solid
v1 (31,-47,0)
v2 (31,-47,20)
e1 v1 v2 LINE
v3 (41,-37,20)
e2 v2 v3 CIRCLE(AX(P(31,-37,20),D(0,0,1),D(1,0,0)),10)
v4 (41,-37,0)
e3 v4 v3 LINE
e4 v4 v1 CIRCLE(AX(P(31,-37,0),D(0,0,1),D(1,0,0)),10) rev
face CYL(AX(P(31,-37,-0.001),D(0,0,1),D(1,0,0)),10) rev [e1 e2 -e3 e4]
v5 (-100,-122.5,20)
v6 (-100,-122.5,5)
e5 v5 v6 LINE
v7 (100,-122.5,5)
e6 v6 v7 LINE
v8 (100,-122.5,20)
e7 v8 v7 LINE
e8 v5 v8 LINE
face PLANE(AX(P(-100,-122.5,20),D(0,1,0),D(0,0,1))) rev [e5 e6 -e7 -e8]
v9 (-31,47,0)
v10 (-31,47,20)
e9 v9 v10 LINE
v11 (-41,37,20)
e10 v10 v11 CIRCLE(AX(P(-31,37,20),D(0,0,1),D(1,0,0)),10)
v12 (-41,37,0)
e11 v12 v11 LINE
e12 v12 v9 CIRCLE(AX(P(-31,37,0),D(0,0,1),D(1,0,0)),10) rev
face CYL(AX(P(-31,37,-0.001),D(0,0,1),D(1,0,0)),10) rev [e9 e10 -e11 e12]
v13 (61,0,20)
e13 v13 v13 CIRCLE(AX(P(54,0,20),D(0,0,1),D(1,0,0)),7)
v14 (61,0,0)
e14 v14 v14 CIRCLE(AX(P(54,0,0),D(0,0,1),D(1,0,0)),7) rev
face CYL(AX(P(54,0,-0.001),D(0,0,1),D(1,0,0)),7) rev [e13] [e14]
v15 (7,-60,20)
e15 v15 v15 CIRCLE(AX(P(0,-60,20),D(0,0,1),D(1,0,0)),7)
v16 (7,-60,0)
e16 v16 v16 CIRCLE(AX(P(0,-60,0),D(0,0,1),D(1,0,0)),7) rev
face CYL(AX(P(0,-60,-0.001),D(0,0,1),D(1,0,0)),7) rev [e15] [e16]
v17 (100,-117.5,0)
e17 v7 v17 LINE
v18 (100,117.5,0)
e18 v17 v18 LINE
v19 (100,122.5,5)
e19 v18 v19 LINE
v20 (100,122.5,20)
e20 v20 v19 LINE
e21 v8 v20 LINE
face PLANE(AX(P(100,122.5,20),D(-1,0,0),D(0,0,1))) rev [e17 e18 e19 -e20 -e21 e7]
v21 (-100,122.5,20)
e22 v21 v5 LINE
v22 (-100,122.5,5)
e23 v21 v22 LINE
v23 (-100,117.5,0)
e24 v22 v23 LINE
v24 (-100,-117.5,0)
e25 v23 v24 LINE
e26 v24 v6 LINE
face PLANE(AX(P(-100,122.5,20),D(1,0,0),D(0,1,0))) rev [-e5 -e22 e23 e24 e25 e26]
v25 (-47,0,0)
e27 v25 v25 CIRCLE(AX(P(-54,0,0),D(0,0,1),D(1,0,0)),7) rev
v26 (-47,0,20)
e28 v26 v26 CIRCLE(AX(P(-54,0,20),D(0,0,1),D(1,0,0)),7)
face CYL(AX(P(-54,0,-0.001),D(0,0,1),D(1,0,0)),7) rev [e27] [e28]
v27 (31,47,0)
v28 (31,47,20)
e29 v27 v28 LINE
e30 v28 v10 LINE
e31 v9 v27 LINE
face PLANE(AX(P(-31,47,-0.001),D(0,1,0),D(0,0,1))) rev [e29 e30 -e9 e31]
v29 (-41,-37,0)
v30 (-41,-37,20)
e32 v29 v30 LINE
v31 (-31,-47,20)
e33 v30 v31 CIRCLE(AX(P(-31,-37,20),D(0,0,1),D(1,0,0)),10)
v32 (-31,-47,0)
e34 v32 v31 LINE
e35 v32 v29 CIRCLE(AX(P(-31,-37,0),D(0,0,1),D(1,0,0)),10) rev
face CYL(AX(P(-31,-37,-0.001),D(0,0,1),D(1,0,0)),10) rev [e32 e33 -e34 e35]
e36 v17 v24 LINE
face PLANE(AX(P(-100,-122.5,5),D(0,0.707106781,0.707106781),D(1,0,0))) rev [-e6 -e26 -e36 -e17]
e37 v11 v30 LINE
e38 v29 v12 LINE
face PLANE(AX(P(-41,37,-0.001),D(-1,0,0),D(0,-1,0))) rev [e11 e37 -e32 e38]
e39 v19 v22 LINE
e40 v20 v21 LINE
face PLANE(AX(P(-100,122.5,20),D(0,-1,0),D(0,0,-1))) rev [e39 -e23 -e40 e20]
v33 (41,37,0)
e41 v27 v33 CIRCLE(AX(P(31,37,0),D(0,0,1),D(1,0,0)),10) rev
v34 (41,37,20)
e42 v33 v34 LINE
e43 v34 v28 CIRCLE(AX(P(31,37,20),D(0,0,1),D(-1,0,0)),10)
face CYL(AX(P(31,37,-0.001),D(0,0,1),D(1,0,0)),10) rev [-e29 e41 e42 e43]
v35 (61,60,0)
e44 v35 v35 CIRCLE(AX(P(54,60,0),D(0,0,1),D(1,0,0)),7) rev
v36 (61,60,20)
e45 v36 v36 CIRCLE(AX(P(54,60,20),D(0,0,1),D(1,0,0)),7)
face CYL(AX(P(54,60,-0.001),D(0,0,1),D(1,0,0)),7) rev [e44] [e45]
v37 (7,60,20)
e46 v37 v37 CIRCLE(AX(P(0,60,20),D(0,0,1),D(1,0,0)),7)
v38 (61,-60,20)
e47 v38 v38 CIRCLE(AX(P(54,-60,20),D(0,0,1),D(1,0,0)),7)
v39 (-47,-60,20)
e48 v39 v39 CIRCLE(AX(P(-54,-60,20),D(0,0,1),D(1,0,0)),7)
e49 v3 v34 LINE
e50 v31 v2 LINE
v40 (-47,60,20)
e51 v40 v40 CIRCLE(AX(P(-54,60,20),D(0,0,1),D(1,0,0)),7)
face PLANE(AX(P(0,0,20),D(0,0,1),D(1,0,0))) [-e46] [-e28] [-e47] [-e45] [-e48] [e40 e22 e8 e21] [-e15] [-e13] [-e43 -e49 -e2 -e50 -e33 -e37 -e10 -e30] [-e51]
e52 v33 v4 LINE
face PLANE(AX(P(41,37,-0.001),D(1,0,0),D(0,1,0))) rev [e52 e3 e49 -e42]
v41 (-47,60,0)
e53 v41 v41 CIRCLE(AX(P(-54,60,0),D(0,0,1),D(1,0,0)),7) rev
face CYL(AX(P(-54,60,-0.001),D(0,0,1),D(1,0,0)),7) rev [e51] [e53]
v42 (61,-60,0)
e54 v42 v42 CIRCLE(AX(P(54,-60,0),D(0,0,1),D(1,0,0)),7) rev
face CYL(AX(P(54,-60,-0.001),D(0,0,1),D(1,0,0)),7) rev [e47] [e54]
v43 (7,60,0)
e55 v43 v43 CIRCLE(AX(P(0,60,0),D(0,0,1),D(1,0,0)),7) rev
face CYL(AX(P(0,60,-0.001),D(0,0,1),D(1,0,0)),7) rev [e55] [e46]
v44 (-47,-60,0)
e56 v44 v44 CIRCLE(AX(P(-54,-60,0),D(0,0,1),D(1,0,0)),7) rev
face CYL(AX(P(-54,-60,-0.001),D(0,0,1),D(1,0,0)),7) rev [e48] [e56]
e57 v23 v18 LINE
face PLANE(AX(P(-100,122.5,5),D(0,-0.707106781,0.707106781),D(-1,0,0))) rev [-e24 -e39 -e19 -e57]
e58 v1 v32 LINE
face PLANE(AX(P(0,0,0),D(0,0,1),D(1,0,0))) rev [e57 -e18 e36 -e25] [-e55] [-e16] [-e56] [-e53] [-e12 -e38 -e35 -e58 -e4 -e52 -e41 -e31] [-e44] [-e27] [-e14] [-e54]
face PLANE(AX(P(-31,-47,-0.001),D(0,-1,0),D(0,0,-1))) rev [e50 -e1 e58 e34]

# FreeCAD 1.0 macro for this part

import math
import FreeCAD as App
import Part
import Sketcher

V = App.Vector
Q = App.Units.Quantity


def edges_at(feature, points):
    """Names of the edges that pass closest to the given points."""
    edges = feature.Shape.Edges
    near = lambda p: min(range(len(edges)), key=lambda i: edges[i].distToShape(Part.Vertex(*p))[0])
    return sorted({f"Edge{near(p) + 1}" for p in points})

doc = App.newDocument("Part")
body = doc.addObject("PartDesign::Body", "Body")

# Sketch on XY plane
sketch1 = doc.addObject("Sketcher::SketchObject", "Sketch")
body.addObject(sketch1)
sketch1.AttachmentSupport = (doc.XY_Plane, [""])
sketch1.MapMode = "FlatFace"
sketch1.addGeometry([
    Part.LineSegment(V(-100, 122.5, 0), V(-100, -122.5, 0)),
    Part.LineSegment(V(-100, -122.5, 0), V(100, -122.5, 0)),
    Part.LineSegment(V(100, -122.5, 0), V(100, 122.5, 0)),
    Part.LineSegment(V(100, 122.5, 0), V(-100, 122.5, 0)),
], False)
sketch1.addConstraint([
    Sketcher.Constraint("Coincident", 0, 2, 1, 1),
    Sketcher.Constraint("Coincident", 1, 2, 2, 1),
    Sketcher.Constraint("Coincident", 2, 2, 3, 1),
    Sketcher.Constraint("Coincident", 3, 2, 0, 1),
    Sketcher.Constraint("Vertical", 0),
    Sketcher.Constraint("Horizontal", 1),
    Sketcher.Constraint("Vertical", 2),
    Sketcher.Constraint("Horizontal", 3),
    Sketcher.Constraint("Symmetric", 0, 2, 2, 2, -1, 1),
    Sketcher.Constraint("DistanceX", 1, 1, 1, 2, Q("200 mm")),
    Sketcher.Constraint("DistanceY", 0, 2, 0, 1, Q("245 mm")),
])
pad1 = doc.addObject("PartDesign::Pad", "Pad")
body.addObject(pad1)
pad1.Profile = sketch1
pad1.Length = 20

# Sketch on XY plane
sketch2 = doc.addObject("Sketcher::SketchObject", "Sketch001")
body.addObject(sketch2)
sketch2.AttachmentSupport = (doc.XY_Plane, [""])
sketch2.MapMode = "FlatFace"
sketch2.AttachmentOffset = App.Placement(V(0, 0, 20), App.Rotation())
sketch2.addGeometry(Part.Circle(V(-54, 60, 0), V(0, 0, 1), 7), False)
sketch2.addConstraint([
    Sketcher.Constraint("Diameter", 0, Q("14 mm")),
    Sketcher.Constraint("DistanceX", 0, 3, -1, 1, Q("54 mm")),
    Sketcher.Constraint("DistanceY", -1, 1, 0, 3, Q("60 mm")),
])
pocket1 = doc.addObject("PartDesign::Pocket", "Pocket")
body.addObject(pocket1)
pocket1.Profile = sketch2
pocket1.Type = "UpToFirst"

# Sketch on XY plane
sketch3 = doc.addObject("Sketcher::SketchObject", "Sketch002")
body.addObject(sketch3)
sketch3.AttachmentSupport = (doc.XY_Plane, [""])
sketch3.MapMode = "FlatFace"
sketch3.AttachmentOffset = App.Placement(V(0, 0, 20), App.Rotation())
sketch3.addGeometry(Part.Circle(V(0, 60, 0), V(0, 0, 1), 7), False)
sketch3.addConstraint([
    Sketcher.Constraint("PointOnObject", 0, 3, -2),
    Sketcher.Constraint("Diameter", 0, Q("14 mm")),
    Sketcher.Constraint("DistanceY", -1, 1, 0, 3, Q("60 mm")),
])
pocket2 = doc.addObject("PartDesign::Pocket", "Pocket001")
body.addObject(pocket2)
pocket2.Profile = sketch3
pocket2.Type = "UpToFirst"

# Sketch on XY plane
sketch4 = doc.addObject("Sketcher::SketchObject", "Sketch003")
body.addObject(sketch4)
sketch4.AttachmentSupport = (doc.XY_Plane, [""])
sketch4.MapMode = "FlatFace"
sketch4.AttachmentOffset = App.Placement(V(0, 0, 20), App.Rotation())
sketch4.addGeometry(Part.Circle(V(54, 60, 0), V(0, 0, 1), 7), False)
sketch4.addConstraint([
    Sketcher.Constraint("Diameter", 0, Q("14 mm")),
    Sketcher.Constraint("DistanceX", -1, 1, 0, 3, Q("54 mm")),
    Sketcher.Constraint("DistanceY", -1, 1, 0, 3, Q("60 mm")),
])
pocket3 = doc.addObject("PartDesign::Pocket", "Pocket002")
body.addObject(pocket3)
pocket3.Profile = sketch4
pocket3.Type = "UpToFirst"

# Sketch on XY plane
sketch5 = doc.addObject("Sketcher::SketchObject", "Sketch004")
body.addObject(sketch5)
sketch5.AttachmentSupport = (doc.XY_Plane, [""])
sketch5.MapMode = "FlatFace"
sketch5.AttachmentOffset = App.Placement(V(0, 0, 20), App.Rotation())
sketch5.addGeometry(Part.Circle(V(-54, 0, 0), V(0, 0, 1), 7), False)
sketch5.addConstraint([
    Sketcher.Constraint("PointOnObject", 0, 3, -1),
    Sketcher.Constraint("Diameter", 0, Q("14 mm")),
    Sketcher.Constraint("DistanceX", 0, 3, -1, 1, Q("54 mm")),
])
pocket4 = doc.addObject("PartDesign::Pocket", "Pocket003")
body.addObject(pocket4)
pocket4.Profile = sketch5
pocket4.Type = "UpToFirst"

# Sketch on XY plane
sketch6 = doc.addObject("Sketcher::SketchObject", "Sketch005")
body.addObject(sketch6)
sketch6.AttachmentSupport = (doc.XY_Plane, [""])
sketch6.MapMode = "FlatFace"
sketch6.AttachmentOffset = App.Placement(V(0, 0, 20), App.Rotation())
sketch6.addGeometry(Part.Circle(V(54, 0, 0), V(0, 0, 1), 7), False)
sketch6.addConstraint([
    Sketcher.Constraint("PointOnObject", 0, 3, -1),
    Sketcher.Constraint("Diameter", 0, Q("14 mm")),
    Sketcher.Constraint("DistanceX", -1, 1, 0, 3, Q("54 mm")),
])
pocket5 = doc.addObject("PartDesign::Pocket", "Pocket004")
body.addObject(pocket5)
pocket5.Profile = sketch6
pocket5.Type = "UpToFirst"

# Sketch on XY plane
sketch7 = doc.addObject("Sketcher::SketchObject", "Sketch006")
body.addObject(sketch7)
sketch7.AttachmentSupport = (doc.XY_Plane, [""])
sketch7.MapMode = "FlatFace"
sketch7.AttachmentOffset = App.Placement(V(0, 0, 20), App.Rotation())
sketch7.addGeometry(Part.Circle(V(-54, -60, 0), V(0, 0, 1), 7), False)
sketch7.addConstraint([
    Sketcher.Constraint("Diameter", 0, Q("14 mm")),
    Sketcher.Constraint("DistanceX", 0, 3, -1, 1, Q("54 mm")),
    Sketcher.Constraint("DistanceY", 0, 3, -1, 1, Q("60 mm")),
])
pocket6 = doc.addObject("PartDesign::Pocket", "Pocket005")
body.addObject(pocket6)
pocket6.Profile = sketch7
pocket6.Type = "UpToFirst"

# Sketch on XY plane
sketch8 = doc.addObject("Sketcher::SketchObject", "Sketch007")
body.addObject(sketch8)
sketch8.AttachmentSupport = (doc.XY_Plane, [""])
sketch8.MapMode = "FlatFace"
sketch8.AttachmentOffset = App.Placement(V(0, 0, 20), App.Rotation())
sketch8.addGeometry(Part.Circle(V(0, -60, 0), V(0, 0, 1), 7), False)
sketch8.addConstraint([
    Sketcher.Constraint("PointOnObject", 0, 3, -2),
    Sketcher.Constraint("Diameter", 0, Q("14 mm")),
    Sketcher.Constraint("DistanceY", 0, 3, -1, 1, Q("60 mm")),
])
pocket7 = doc.addObject("PartDesign::Pocket", "Pocket006")
body.addObject(pocket7)
pocket7.Profile = sketch8
pocket7.Type = "UpToFirst"

# Sketch on XY plane
sketch9 = doc.addObject("Sketcher::SketchObject", "Sketch008")
body.addObject(sketch9)
sketch9.AttachmentSupport = (doc.XY_Plane, [""])
sketch9.MapMode = "FlatFace"
sketch9.AttachmentOffset = App.Placement(V(0, 0, 20), App.Rotation())
sketch9.addGeometry(Part.Circle(V(54, -60, 0), V(0, 0, 1), 7), False)
sketch9.addConstraint([
    Sketcher.Constraint("Diameter", 0, Q("14 mm")),
    Sketcher.Constraint("DistanceX", -1, 1, 0, 3, Q("54 mm")),
    Sketcher.Constraint("DistanceY", 0, 3, -1, 1, Q("60 mm")),
])
pocket8 = doc.addObject("PartDesign::Pocket", "Pocket007")
body.addObject(pocket8)
pocket8.Profile = sketch9
pocket8.Type = "UpToFirst"

# Sketch on XY plane
sketch10 = doc.addObject("Sketcher::SketchObject", "Sketch009")
body.addObject(sketch10)
sketch10.AttachmentSupport = (doc.XY_Plane, [""])
sketch10.MapMode = "FlatFace"
sketch10.AttachmentOffset = App.Placement(V(0, 0, 20), App.Rotation())
sketch10.addGeometry([
    Part.LineSegment(V(31, 47, 0), V(-31, 47, 0)),  # 0
    Part.ArcOfCircle(Part.Circle(V(-31, 37, 0), V(0, 0, 1), 10), math.radians(90), math.radians(180)),  # 1
    Part.LineSegment(V(-41, 37, 0), V(-41, -37, 0)),  # 2
    Part.ArcOfCircle(Part.Circle(V(-31, -37, 0), V(0, 0, 1), 10), math.radians(180), math.radians(270)),  # 3
    Part.LineSegment(V(-31, -47, 0), V(31, -47, 0)),  # 4
    Part.ArcOfCircle(Part.Circle(V(31, -37, 0), V(0, 0, 1), 10), math.radians(-90), math.radians(0)),  # 5
    Part.LineSegment(V(41, -37, 0), V(41, 37, 0)),  # 6
    Part.ArcOfCircle(Part.Circle(V(31, 37, 0), V(0, 0, 1), 10), math.radians(0), math.radians(90)),  # 7
], False)
sketch10.addConstraint([
    Sketcher.Constraint("Tangent", 0, 2, 1, 1),
    Sketcher.Constraint("Tangent", 1, 2, 2, 1),
    Sketcher.Constraint("Tangent", 2, 2, 3, 1),
    Sketcher.Constraint("Tangent", 3, 2, 4, 1),
    Sketcher.Constraint("Tangent", 4, 2, 5, 1),
    Sketcher.Constraint("Tangent", 5, 2, 6, 1),
    Sketcher.Constraint("Tangent", 6, 2, 7, 1),
    Sketcher.Constraint("Tangent", 7, 2, 0, 1),
    Sketcher.Constraint("Horizontal", 0),
    Sketcher.Constraint("Vertical", 2),
    Sketcher.Constraint("Horizontal", 4),
    Sketcher.Constraint("Vertical", 6),
    Sketcher.Constraint("Equal", 1, 3),
    Sketcher.Constraint("Equal", 3, 5),
    Sketcher.Constraint("Equal", 5, 7),
    Sketcher.Constraint("Symmetric", 1, 3, 5, 3, -1, 1),
    Sketcher.Constraint("Radius", 1, Q("10 mm")),
    Sketcher.Constraint("DistanceX", 0, 2, 0, 1, Q("62 mm")),
    Sketcher.Constraint("DistanceY", 2, 2, 2, 1, Q("74 mm")),
])
pocket9 = doc.addObject("PartDesign::Pocket", "Pocket008")
body.addObject(pocket9)
pocket9.Profile = sketch10
pocket9.Type = "UpToFirst"
doc.recompute()

chamfer = doc.addObject("PartDesign::Chamfer", "Chamfer")
body.addObject(chamfer)
chamfer.Base = (pocket9, edges_at(pocket9, [(0, -122.5, 0), (0, 122.5, 0)]))
chamfer.Size = 5

doc.recompute()
